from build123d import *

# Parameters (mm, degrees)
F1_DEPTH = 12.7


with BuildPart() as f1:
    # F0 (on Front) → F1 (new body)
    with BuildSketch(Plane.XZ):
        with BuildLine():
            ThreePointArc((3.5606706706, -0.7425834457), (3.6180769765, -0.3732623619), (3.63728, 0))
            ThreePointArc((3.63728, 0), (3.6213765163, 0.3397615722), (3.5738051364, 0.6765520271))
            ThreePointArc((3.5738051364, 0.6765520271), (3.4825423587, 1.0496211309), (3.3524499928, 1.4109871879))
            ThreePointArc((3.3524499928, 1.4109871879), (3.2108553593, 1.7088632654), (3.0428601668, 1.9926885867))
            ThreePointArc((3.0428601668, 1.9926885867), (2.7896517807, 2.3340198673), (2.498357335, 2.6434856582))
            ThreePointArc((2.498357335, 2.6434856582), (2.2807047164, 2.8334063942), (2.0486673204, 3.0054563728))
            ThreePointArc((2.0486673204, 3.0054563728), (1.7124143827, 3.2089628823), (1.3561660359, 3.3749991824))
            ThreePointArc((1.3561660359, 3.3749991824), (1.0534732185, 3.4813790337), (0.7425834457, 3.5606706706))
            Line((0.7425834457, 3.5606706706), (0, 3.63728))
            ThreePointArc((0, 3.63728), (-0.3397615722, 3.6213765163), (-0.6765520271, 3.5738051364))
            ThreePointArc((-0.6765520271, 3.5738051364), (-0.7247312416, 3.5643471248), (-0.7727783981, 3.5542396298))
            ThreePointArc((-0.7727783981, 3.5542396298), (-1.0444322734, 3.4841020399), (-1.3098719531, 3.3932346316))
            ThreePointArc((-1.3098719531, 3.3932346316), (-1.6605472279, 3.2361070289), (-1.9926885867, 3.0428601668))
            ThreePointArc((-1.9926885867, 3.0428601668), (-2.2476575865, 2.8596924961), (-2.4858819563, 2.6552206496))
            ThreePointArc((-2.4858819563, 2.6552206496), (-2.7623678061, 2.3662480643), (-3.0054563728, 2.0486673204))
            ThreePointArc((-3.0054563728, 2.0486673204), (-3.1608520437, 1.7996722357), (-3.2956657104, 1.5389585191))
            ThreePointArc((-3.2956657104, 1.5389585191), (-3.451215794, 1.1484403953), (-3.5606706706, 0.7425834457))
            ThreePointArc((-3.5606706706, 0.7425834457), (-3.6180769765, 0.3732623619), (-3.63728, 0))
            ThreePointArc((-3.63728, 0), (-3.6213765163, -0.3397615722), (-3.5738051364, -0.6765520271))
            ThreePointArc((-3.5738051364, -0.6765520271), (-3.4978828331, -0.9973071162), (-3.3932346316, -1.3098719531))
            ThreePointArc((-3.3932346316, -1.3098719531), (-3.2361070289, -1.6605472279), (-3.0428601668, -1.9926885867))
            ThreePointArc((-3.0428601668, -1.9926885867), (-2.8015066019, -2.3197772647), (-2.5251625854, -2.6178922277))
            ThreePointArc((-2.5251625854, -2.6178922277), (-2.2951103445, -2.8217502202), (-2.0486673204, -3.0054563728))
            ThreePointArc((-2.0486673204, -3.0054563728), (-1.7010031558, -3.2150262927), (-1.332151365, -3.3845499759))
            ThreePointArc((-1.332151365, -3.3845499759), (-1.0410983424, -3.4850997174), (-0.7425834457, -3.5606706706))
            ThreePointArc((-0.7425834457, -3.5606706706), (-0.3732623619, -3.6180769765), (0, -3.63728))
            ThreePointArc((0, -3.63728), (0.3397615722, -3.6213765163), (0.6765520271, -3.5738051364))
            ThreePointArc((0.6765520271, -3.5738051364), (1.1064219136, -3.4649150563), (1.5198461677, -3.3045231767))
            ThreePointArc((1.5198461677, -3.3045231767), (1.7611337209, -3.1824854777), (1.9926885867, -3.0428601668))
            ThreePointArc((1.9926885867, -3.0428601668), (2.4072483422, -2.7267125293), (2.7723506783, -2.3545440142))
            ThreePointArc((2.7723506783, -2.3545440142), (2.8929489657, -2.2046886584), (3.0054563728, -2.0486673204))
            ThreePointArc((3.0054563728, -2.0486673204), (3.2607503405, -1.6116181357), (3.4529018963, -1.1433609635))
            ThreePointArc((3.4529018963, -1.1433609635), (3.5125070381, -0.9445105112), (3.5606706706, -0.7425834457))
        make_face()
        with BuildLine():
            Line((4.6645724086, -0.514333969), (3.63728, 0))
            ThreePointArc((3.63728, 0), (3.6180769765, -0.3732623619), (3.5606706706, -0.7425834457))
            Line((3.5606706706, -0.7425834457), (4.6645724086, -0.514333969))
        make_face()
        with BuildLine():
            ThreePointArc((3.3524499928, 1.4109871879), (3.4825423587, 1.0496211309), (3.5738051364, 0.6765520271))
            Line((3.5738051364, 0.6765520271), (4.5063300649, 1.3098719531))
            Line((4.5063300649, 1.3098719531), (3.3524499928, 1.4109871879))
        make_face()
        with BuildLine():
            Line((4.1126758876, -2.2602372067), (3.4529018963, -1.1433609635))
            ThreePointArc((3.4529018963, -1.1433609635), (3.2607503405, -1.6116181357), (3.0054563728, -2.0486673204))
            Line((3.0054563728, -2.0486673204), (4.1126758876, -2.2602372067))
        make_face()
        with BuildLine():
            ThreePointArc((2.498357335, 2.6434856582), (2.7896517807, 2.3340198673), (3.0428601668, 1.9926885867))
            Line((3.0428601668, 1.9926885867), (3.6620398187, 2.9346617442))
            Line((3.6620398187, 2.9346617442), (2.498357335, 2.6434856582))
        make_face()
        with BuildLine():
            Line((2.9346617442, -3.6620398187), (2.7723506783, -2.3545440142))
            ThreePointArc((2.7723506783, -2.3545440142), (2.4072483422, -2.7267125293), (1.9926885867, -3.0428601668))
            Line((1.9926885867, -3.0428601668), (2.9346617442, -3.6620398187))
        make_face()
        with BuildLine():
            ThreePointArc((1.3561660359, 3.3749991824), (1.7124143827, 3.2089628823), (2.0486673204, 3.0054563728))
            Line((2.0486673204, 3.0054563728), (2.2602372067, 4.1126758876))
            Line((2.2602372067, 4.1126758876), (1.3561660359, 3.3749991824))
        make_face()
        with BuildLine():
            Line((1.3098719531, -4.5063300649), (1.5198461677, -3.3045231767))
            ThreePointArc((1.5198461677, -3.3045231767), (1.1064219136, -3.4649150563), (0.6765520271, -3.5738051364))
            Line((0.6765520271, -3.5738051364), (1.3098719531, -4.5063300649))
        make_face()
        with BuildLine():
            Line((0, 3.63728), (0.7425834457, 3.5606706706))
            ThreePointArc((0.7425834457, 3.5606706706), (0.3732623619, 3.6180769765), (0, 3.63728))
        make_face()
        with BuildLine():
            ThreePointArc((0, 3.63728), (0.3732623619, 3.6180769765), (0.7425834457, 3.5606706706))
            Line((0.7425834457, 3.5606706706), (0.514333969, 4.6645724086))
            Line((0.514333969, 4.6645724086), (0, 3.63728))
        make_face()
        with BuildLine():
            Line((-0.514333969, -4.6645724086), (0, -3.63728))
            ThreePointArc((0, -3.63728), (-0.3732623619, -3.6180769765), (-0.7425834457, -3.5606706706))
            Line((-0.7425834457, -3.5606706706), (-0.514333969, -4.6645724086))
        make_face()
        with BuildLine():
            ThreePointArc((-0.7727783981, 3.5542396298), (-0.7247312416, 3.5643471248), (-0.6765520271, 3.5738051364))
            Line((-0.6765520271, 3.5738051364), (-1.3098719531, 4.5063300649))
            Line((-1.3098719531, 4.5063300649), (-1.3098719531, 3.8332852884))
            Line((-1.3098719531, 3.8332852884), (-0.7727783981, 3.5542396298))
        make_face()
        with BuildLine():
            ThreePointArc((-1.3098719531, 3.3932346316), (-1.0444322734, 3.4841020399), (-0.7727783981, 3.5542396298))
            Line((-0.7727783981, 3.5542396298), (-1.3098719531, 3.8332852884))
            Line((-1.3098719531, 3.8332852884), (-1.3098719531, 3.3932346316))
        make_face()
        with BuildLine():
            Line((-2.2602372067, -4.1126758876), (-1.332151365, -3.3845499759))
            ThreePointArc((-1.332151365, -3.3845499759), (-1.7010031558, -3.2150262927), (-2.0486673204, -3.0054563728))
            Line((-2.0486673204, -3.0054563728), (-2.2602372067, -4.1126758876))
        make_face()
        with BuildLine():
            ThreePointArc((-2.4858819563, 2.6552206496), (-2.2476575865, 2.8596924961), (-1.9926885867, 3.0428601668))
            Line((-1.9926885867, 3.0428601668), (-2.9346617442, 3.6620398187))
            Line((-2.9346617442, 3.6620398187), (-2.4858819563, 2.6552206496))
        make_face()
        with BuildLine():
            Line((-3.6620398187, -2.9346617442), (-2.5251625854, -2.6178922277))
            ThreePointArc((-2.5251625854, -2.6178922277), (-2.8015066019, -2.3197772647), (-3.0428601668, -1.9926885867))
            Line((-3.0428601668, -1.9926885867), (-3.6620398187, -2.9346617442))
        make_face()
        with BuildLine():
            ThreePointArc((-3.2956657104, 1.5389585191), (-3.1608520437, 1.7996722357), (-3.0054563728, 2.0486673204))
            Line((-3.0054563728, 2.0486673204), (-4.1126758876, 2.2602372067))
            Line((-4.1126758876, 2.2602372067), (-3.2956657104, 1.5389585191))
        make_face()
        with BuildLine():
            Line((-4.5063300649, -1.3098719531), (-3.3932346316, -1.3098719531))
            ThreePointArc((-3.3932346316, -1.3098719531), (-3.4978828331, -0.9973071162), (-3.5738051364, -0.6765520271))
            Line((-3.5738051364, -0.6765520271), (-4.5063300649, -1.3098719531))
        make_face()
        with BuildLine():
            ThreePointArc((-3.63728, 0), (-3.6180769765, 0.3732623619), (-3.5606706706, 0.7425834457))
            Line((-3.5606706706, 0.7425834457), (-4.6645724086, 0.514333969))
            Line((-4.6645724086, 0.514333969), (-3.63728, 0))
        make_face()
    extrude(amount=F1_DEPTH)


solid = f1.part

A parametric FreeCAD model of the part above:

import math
import FreeCAD as App
import Part
import Sketcher
Q = App.Units.Quantity

doc = App.newDocument("Part")
params = doc.addObject("Spreadsheet::Sheet", "Params")
for row, (alias, value) in enumerate([
    ("pad1_length", "0.5 in"),
], start=1):
    params.set(f"A{row}", alias)
    params.set(f"B{row}", "=" + value)
    params.setAlias(f"B{row}", alias)

body = doc.addObject("PartDesign::Body", "Body")

# Sketch on XZ plane
sketch1 = body.newObject("Sketcher::SketchObject", "Sketch")
sketch1.AttachmentSupport = (doc.getObject("XZ_Plane"), [""])
sketch1.MapMode = "FlatFace"
sketch1.addGeometry([
    Part.ArcOfCircle(Part.Circle(App.Vector(0, 0, 0), App.Vector(0, 0, 1), 3.63728), math.radians(0), math.radians(10.719728)),  # 0
    Part.LineSegment(App.Vector(3.573805, 0.676552, 0), App.Vector(4.50633, 1.309872, 0)),  # 1
    Part.LineSegment(App.Vector(4.50633, 1.309872, 0), App.Vector(3.35245, 1.410987, 0)),  # 2
    Part.ArcOfCircle(Part.Circle(App.Vector(0, 0, 0), App.Vector(0, 0, 1), 3.63728), math.radians(22.825369), math.radians(33.219728)),  # 3
    Part.LineSegment(App.Vector(3.04286, 1.992689, 0), App.Vector(3.66204, 2.934662, 0)),  # 4
    Part.LineSegment(App.Vector(3.66204, 2.934662, 0), App.Vector(2.498357, 2.643486, 0)),  # 5
    Part.ArcOfCircle(Part.Circle(App.Vector(0, 0, 0), App.Vector(0, 0, 1), 3.63728), math.radians(46.616742), math.radians(55.719728)),  # 6
    Part.LineSegment(App.Vector(2.048667, 3.005456, 0), App.Vector(2.260237, 4.112676, 0)),  # 7
    Part.LineSegment(App.Vector(2.260237, 4.112676, 0), App.Vector(1.356166, 3.374999, 0)),  # 8
    Part.ArcOfCircle(Part.Circle(App.Vector(0, 0, 0), App.Vector(0, 0, 1), 3.63728), math.radians(68.108403), math.radians(78.219728)),  # 9
    Part.LineSegment(App.Vector(0.742583, 3.560671, 0), App.Vector(0.514334, 4.664572, 0)),  # 10
    Part.LineSegment(App.Vector(0.514334, 4.664572, 0), App.Vector(0, 3.63728, 0)),  # 11
    Part.ArcOfCircle(Part.Circle(App.Vector(0, 0, 0), App.Vector(0, 0, 1), 3.63728), math.radians(90), math.radians(100.719728)),  # 12
    Part.LineSegment(App.Vector(-0.676552, 3.573805, 0), App.Vector(-1.309872, 4.50633, 0)),  # 13
    Part.LineSegment(App.Vector(-1.309872, 4.50633, 0), App.Vector(-1.309872, 3.393235, 0)),  # 14
    Part.ArcOfCircle(Part.Circle(App.Vector(0, 0, 0), App.Vector(0, 0, 1), 3.63728), math.radians(111.107814), math.radians(123.219728)),  # 15
    Part.LineSegment(App.Vector(-1.992689, 3.04286, 0), App.Vector(-2.934662, 3.66204, 0)),  # 16
    Part.LineSegment(App.Vector(-2.934662, 3.66204, 0), App.Vector(-2.485882, 2.655221, 0)),  # 17
    Part.ArcOfCircle(Part.Circle(App.Vector(0, 0, 0), App.Vector(0, 0, 1), 3.63728), math.radians(133.113462), math.radians(145.719728)),  # 18
    Part.LineSegment(App.Vector(-3.005456, 2.048667, 0), App.Vector(-4.112676, 2.260237, 0)),  # 19
    Part.LineSegment(App.Vector(-4.112676, 2.260237, 0), App.Vector(-3.295666, 1.538959, 0)),  # 20
    Part.ArcOfCircle(Part.Circle(App.Vector(0, 0, 0), App.Vector(0, 0, 1), 3.63728), math.radians(154.969101), math.radians(168.219728)),  # 21
    Part.LineSegment(App.Vector(-3.560671, 0.742583, 0), App.Vector(-4.664572, 0.514334, 0)),  # 22
    Part.LineSegment(App.Vector(-4.664572, 0.514334, 0), App.Vector(-3.63728, 0, 0)),  # 23
    Part.ArcOfCircle(Part.Circle(App.Vector(0, 0, 0), App.Vector(0, 0, 1), 3.63728), math.radians(180), math.radians(190.719728)),  # 24
    Part.LineSegment(App.Vector(-3.573805, -0.676552, 0), App.Vector(-4.50633, -1.309872, 0)),  # 25
    Part.LineSegment(App.Vector(-4.50633, -1.309872, 0), App.Vector(-3.393235, -1.309872, 0)),  # 26
    Part.ArcOfCircle(Part.Circle(App.Vector(0, 0, 0), App.Vector(0, 0, 1), 3.63728), math.radians(-158.892186), math.radians(-146.780272)),  # 27
    Part.LineSegment(App.Vector(-3.04286, -1.992689, 0), App.Vector(-3.66204, -2.934662, 0)),  # 28
    Part.LineSegment(App.Vector(-3.66204, -2.934662, 0), App.Vector(-2.525163, -2.617892, 0)),  # 29
    Part.ArcOfCircle(Part.Circle(App.Vector(0, 0, 0), App.Vector(0, 0, 1), 3.63728), math.radians(-133.967065), math.radians(-124.280272)),  # 30
    Part.LineSegment(App.Vector(-2.048667, -3.005456, 0), App.Vector(-2.260237, -4.112676, 0)),  # 31
    Part.LineSegment(App.Vector(-2.260237, -4.112676, 0), App.Vector(-1.332151, -3.38455, 0)),  # 32
    Part.ArcOfCircle(Part.Circle(App.Vector(0, 0, 0), App.Vector(0, 0, 1), 3.63728), math.radians(-111.484489), math.radians(-101.780272)),  # 33
    Part.LineSegment(App.Vector(-0.742583, -3.560671, 0), App.Vector(-0.514334, -4.664572, 0)),  # 34
    Part.LineSegment(App.Vector(-0.514334, -4.664572, 0), App.Vector(0, -3.63728, 0)),  # 35
    Part.ArcOfCircle(Part.Circle(App.Vector(0, 0, 0), App.Vector(0, 0, 1), 3.63728), math.radians(-90), math.radians(-79.280272)),  # 36
    Part.LineSegment(App.Vector(0.676552, -3.573805, 0), App.Vector(1.309872, -4.50633, 0)),  # 37
    Part.LineSegment(App.Vector(1.309872, -4.50633, 0), App.Vector(1.519846, -3.304523, 0)),  # 38
    Part.ArcOfCircle(Part.Circle(App.Vector(0, 0, 0), App.Vector(0, 0, 1), 3.63728), math.radians(-65.300926), math.radians(-56.780272)),  # 39
    Part.LineSegment(App.Vector(1.992689, -3.04286, 0), App.Vector(2.934662, -3.66204, 0)),  # 40
    Part.LineSegment(App.Vector(2.934662, -3.66204, 0), App.Vector(2.772351, -2.354544, 0)),  # 41
    Part.ArcOfCircle(Part.Circle(App.Vector(0, 0, 0), App.Vector(0, 0, 1), 3.63728), math.radians(-40.341083), math.radians(-34.280272)),  # 42
    Part.LineSegment(App.Vector(3.005456, -2.048667, 0), App.Vector(4.112676, -2.260237, 0)),  # 43
    Part.LineSegment(App.Vector(4.112676, -2.260237, 0), App.Vector(3.452902, -1.143361, 0)),  # 44
    Part.ArcOfCircle(Part.Circle(App.Vector(0, 0, 0), App.Vector(0, 0, 1), 3.63728), math.radians(-18.32128), math.radians(-11.780272)),  # 45
    Part.LineSegment(App.Vector(3.560671, -0.742583, 0), App.Vector(4.664572, -0.514334, 0)),  # 46
    Part.LineSegment(App.Vector(4.664572, -0.514334, 0), App.Vector(3.63728, 0, 0)),  # 47
], False)
sketch1.addConstraint([
    Sketcher.Constraint("Coincident", 0, 2, 1, 1),
    Sketcher.Constraint("Coincident", 1, 2, 2, 1),
    Sketcher.Constraint("Coincident", 2, 2, 3, 1),
    Sketcher.Constraint("Coincident", 3, 2, 4, 1),
    Sketcher.Constraint("Coincident", 4, 2, 5, 1),
    Sketcher.Constraint("Coincident", 5, 2, 6, 1),
    Sketcher.Constraint("Coincident", 6, 2, 7, 1),
    Sketcher.Constraint("Coincident", 7, 2, 8, 1),
    Sketcher.Constraint("Coincident", 8, 2, 9, 1),
    Sketcher.Constraint("Coincident", 9, 2, 10, 1),
    Sketcher.Constraint("Coincident", 10, 2, 11, 1),
    Sketcher.Constraint("Coincident", 11, 2, 12, 1),
    Sketcher.Constraint("Coincident", 12, 2, 13, 1),
    Sketcher.Constraint("Coincident", 13, 2, 14, 1),
    Sketcher.Constraint("Coincident", 14, 2, 15, 1),
    Sketcher.Constraint("Coincident", 15, 2, 16, 1),
    Sketcher.Constraint("Coincident", 16, 2, 17, 1),
    Sketcher.Constraint("Coincident", 17, 2, 18, 1),
    Sketcher.Constraint("Coincident", 18, 2, 19, 1),
    Sketcher.Constraint("Coincident", 19, 2, 20, 1),
    Sketcher.Constraint("Coincident", 20, 2, 21, 1),
    Sketcher.Constraint("Coincident", 21, 2, 22, 1),
    Sketcher.Constraint("Coincident", 22, 2, 23, 1),
    Sketcher.Constraint("Coincident", 23, 2, 24, 1),
    Sketcher.Constraint("Coincident", 24, 2, 25, 1),
    Sketcher.Constraint("Coincident", 25, 2, 26, 1),
    Sketcher.Constraint("Coincident", 26, 2, 27, 1),
    Sketcher.Constraint("Coincident", 27, 2, 28, 1),
    Sketcher.Constraint("Coincident", 28, 2, 29, 1),
    Sketcher.Constraint("Coincident", 29, 2, 30, 1),
    Sketcher.Constraint("Coincident", 30, 2, 31, 1),
    Sketcher.Constraint("Coincident", 31, 2, 32, 1),
    Sketcher.Constraint("Coincident", 32, 2, 33, 1),
    Sketcher.Constraint("Coincident", 33, 2, 34, 1),
    Sketcher.Constraint("Coincident", 34, 2, 35, 1),
    Sketcher.Constraint("Coincident", 35, 2, 36, 1),
    Sketcher.Constraint("Coincident", 36, 2, 37, 1),
    Sketcher.Constraint("Coincident", 37, 2, 38, 1),
    Sketcher.Constraint("Coincident", 38, 2, 39, 1),
    Sketcher.Constraint("Coincident", 39, 2, 40, 1),
    Sketcher.Constraint("Coincident", 40, 2, 41, 1),
    Sketcher.Constraint("Coincident", 41, 2, 42, 1),
    Sketcher.Constraint("Coincident", 42, 2, 43, 1),
    Sketcher.Constraint("Coincident", 43, 2, 44, 1),
    Sketcher.Constraint("Coincident", 44, 2, 45, 1),
    Sketcher.Constraint("Coincident", 45, 2, 46, 1),
    Sketcher.Constraint("Coincident", 46, 2, 47, 1),
    Sketcher.Constraint("Coincident", 47, 2, 0, 1),
    Sketcher.Constraint("Vertical", 14),
    Sketcher.Constraint("Horizontal", 26),
    Sketcher.Constraint("Coincident", 0, 3, -1, 1),
    Sketcher.Constraint("Coincident", 3, 3, -1, 1),
    Sketcher.Constraint("Coincident", 6, 3, -1, 1),
    Sketcher.Constraint("Coincident", 9, 3, -1, 1),
    Sketcher.Constraint("Coincident", 12, 3, -1, 1),
    Sketcher.Constraint("Coincident", 15, 3, -1, 1),
    Sketcher.Constraint("Coincident", 18, 3, -1, 1),
    Sketcher.Constraint("Coincident", 21, 3, -1, 1),
    Sketcher.Constraint("Coincident", 24, 3, -1, 1),
    Sketcher.Constraint("Coincident", 27, 3, -1, 1),
    Sketcher.Constraint("Coincident", 30, 3, -1, 1),
    Sketcher.Constraint("Coincident", 33, 3, -1, 1),
    Sketcher.Constraint("Coincident", 36, 3, -1, 1),
    Sketcher.Constraint("Coincident", 39, 3, -1, 1),
    Sketcher.Constraint("Coincident", 42, 3, -1, 1),
    Sketcher.Constraint("Coincident", 45, 3, -1, 1),
    Sketcher.Constraint("Equal", 0, 3),
    Sketcher.Constraint("Equal", 3, 6),
    Sketcher.Constraint("Equal", 6, 9),
    Sketcher.Constraint("Equal", 9, 12),
    Sketcher.Constraint("Equal", 12, 15),
    Sketcher.Constraint("Equal", 15, 18),
    Sketcher.Constraint("Equal", 18, 21),
    Sketcher.Constraint("Equal", 21, 24),
    Sketcher.Constraint("Equal", 24, 27),
    Sketcher.Constraint("Equal", 27, 30),
    Sketcher.Constraint("Equal", 30, 33),
    Sketcher.Constraint("Equal", 33, 36),
    Sketcher.Constraint("Equal", 36, 39),
    Sketcher.Constraint("Equal", 39, 42),
    Sketcher.Constraint("Equal", 42, 45),
    Sketcher.Constraint("Symmetric", 1, 2, 25, 2, -1, 1),
    Sketcher.Constraint("Symmetric", 4, 2, 28, 2, -1, 1),
    Sketcher.Constraint("Symmetric", 7, 2, 31, 2, -1, 1),
    Sketcher.Constraint("Symmetric", 10, 2, 34, 2, -1, 1),
    Sketcher.Constraint("Symmetric", 13, 2, 37, 2, -1, 1),
    Sketcher.Constraint("Symmetric", 16, 2, 40, 2, -1, 1),
    Sketcher.Constraint("Symmetric", 19, 2, 43, 2, -1, 1),
    Sketcher.Constraint("Symmetric", 22, 2, 46, 2, -1, 1),
    Sketcher.Constraint("PointOnObject", 11, 2, -2),
    Sketcher.Constraint("PointOnObject", 23, 2, -1),
    Sketcher.Constraint("PointOnObject", 35, 2, -2),
    Sketcher.Constraint("PointOnObject", 47, 2, -1),
    Sketcher.Constraint("Perpendicular", 1, 13),
    Sketcher.Constraint("Perpendicular", 4, 16),
    Sketcher.Constraint("Perpendicular", 7, 19),
    Sketcher.Constraint("Perpendicular", 10, 22),
    Sketcher.Constraint("Perpendicular", 11, 23),
    Sketcher.Constraint("Perpendicular", 13, 25),
    Sketcher.Constraint("Perpendicular", 16, 28),
    Sketcher.Constraint("Perpendicular", 19, 31),
    Sketcher.Constraint("Perpendicular", 22, 34),
    Sketcher.Constraint("Perpendicular", 25, 37),
    Sketcher.Constraint("Perpendicular", 28, 40),
    Sketcher.Constraint("Perpendicular", 31, 43),
    Sketcher.Constraint("Perpendicular", 34, 46),
    Sketcher.Constraint("Equal", 26, 14),
    Sketcher.Constraint("Equal", 1, 4),
    Sketcher.Constraint("Equal", 4, 7),
    Sketcher.Constraint("Equal", 7, 10),
    Sketcher.Constraint("Equal", 10, 13),
    Sketcher.Constraint("Equal", 13, 16),
    Sketcher.Constraint("Equal", 16, 19),
    Sketcher.Constraint("Equal", 19, 22),
    Sketcher.Constraint("Radius", 0, Q("0.1432 in")),
    Sketcher.Constraint("Distance", 2, 1.158302),
    Sketcher.Constraint("DistanceY", -1, 1, 8, 2, 3.374999),
    Sketcher.Constraint("DistanceX", -1, 1, 44, 2, 3.452902),
    Sketcher.Constraint("Distance", 1, 1.127252),
    Sketcher.Constraint("Distance", 5, 1.199558),
    Sketcher.Constraint("Distance", 8, 1.166838),
    Sketcher.Constraint("Distance", 17, 1.10231),
    Sketcher.Constraint("Distance", 20, 1.089839),
    Sketcher.Constraint("Distance", 38, 1.220012),
    Sketcher.Constraint("Distance", 41, 1.317532),
    Sketcher.Constraint("DistanceX", 26, 1, 26, 2, 1.113095),
    Sketcher.Constraint("DistanceX", -1, 1, 1, 2, 4.50633),
    Sketcher.Constraint("DistanceX", -1, 1, 3, 2, 3.04286),
    Sketcher.Constraint("DistanceX", -1, 1, 4, 2, 3.66204),
    Sketcher.Constraint("DistanceY", -1, 1, 9, 2, 3.560671),
    Sketcher.Constraint("DistanceX", 15, 2, -1, 1, 1.992689),
    Sketcher.Constraint("DistanceY", -1, 1, 20, 2, 1.538959),
    Sketcher.Constraint("DistanceX", 32, 2, -1, 1, 1.332151),
    Sketcher.Constraint("Distance", 11, 1.148856),
    Sketcher.Constraint("Distance", 29, 1.180183),
    Sketcher.Constraint("Distance", 44, 1.297195),
])
pad1 = body.newObject("PartDesign::Pad", "Pad")
pad1.Profile = sketch1
pad1.setExpression("Length", "Params.pad1_length")

doc.recompute()
